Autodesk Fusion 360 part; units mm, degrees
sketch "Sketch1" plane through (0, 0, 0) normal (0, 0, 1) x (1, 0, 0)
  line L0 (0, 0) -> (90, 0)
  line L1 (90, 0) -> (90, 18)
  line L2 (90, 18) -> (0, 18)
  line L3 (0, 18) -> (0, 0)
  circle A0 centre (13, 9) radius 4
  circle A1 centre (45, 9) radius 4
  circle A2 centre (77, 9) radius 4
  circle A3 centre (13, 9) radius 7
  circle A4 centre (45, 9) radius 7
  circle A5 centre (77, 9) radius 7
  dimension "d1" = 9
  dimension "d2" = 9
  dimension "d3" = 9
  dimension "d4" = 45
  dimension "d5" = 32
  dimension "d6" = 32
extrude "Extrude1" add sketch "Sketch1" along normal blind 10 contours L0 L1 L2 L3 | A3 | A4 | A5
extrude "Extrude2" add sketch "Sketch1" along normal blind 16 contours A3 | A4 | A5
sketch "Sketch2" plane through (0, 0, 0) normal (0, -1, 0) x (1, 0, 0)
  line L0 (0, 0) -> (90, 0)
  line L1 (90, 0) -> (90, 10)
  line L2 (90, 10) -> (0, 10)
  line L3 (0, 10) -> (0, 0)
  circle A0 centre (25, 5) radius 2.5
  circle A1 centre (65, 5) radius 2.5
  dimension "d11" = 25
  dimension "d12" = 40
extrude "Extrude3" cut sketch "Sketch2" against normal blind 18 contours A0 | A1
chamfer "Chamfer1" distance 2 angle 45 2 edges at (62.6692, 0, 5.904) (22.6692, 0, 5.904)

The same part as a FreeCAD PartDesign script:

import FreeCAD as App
import Part
import Sketcher
from FreeCAD import Vector
Q = App.Units.Quantity


def edges_at(feature, points):
    """Names of the edges that pass closest to the given points."""
    edges = feature.Shape.Edges
    near = lambda p: min(range(len(edges)), key=lambda i: edges[i].distToShape(Part.Vertex(*p))[0])
    return sorted({f"Edge{near(p) + 1}" for p in points})


def add_polygon(sketch, points):
    """Adds a closed chain of lines whose ends are joined by coincident constraints."""
    first, n = sketch.GeometryCount, len(points)
    for a, b in zip(points, points[1:] + points[:1]):
        sketch.addGeometry(Part.LineSegment(App.Vector(*a, 0), App.Vector(*b, 0)), False)
    for i in range(n):
        sketch.addConstraint(Sketcher.Constraint("Coincident", first + i, 2, first + (i + 1) % n, 1))

doc = App.newDocument("Part")
body = doc.addObject("PartDesign::Body", "Body")

sketch1 = body.newObject("Sketcher::SketchObject", "Sketch")
sketch1.AttachmentSupport = (doc.getObject("XY_Plane"), [""])
sketch1.MapMode = "FlatFace"
add_polygon(sketch1, [(0, 18), (0, 0), (90, 0), (90, 18)])
sketch1.addGeometry(Part.Circle(Vector(13, 9, 0), Vector(0, 0, 1), 4), False)
sketch1.addGeometry(Part.Circle(Vector(45, 9, 0), Vector(0, 0, 1), 4), False)
sketch1.addGeometry(Part.Circle(Vector(77, 9, 0), Vector(0, 0, 1), 4), False)
sketch1.addConstraint([
    Sketcher.Constraint("Vertical", 0),
    Sketcher.Constraint("Horizontal", 1),
    Sketcher.Constraint("Vertical", 2),
    Sketcher.Constraint("Horizontal", 3),
    Sketcher.Constraint("Coincident", 0, 2, -1, 1),
    Sketcher.Constraint("Equal", 4, 5),
    Sketcher.Constraint("Equal", 5, 6),
    Sketcher.Constraint("Horizontal", 4, 3, 5, 3),
    Sketcher.Constraint("Horizontal", 5, 3, 6, 3),
    Sketcher.Constraint("Diameter", 4, Q("8 mm")),
    Sketcher.Constraint("DistanceY", -1, 1, 4, 3, Q("9 mm")),
    Sketcher.Constraint("DistanceX", -1, 1, 5, 3, Q("45 mm")),
    Sketcher.Constraint("DistanceX", 4, 3, 5, 3, Q("32 mm")),
    Sketcher.Constraint("DistanceX", 5, 3, 6, 3, Q("32 mm")),
    Sketcher.Constraint("DistanceX", 5, 3, 1, 2, Q("45 mm")),
    Sketcher.Constraint("DistanceY", 6, 3, 2, 2, Q("9 mm")),
])
pad1 = body.newObject("PartDesign::Pad", "Pad")
pad1.Profile = sketch1
pad1.Length = 10

sketch2 = body.newObject("Sketcher::SketchObject", "Sketch001")
sketch2.AttachmentSupport = (doc.getObject("XY_Plane"), [""])
sketch2.MapMode = "FlatFace"
sketch2.addGeometry([
    Part.Circle(Vector(13, 9, 0), Vector(0, 0, 1), 7),
    Part.Circle(Vector(13, 9, 0), Vector(0, 0, 1), 4),
    Part.Circle(Vector(45, 9, 0), Vector(0, 0, 1), 7),
    Part.Circle(Vector(45, 9, 0), Vector(0, 0, 1), 4),
    Part.Circle(Vector(77, 9, 0), Vector(0, 0, 1), 7),
    Part.Circle(Vector(77, 9, 0), Vector(0, 0, 1), 4),
], False)
sketch2.addConstraint([
    Sketcher.Constraint("Coincident", 1, 3, 0, 3),
    Sketcher.Constraint("Coincident", 3, 3, 2, 3),
    Sketcher.Constraint("Coincident", 5, 3, 4, 3),
    Sketcher.Constraint("Equal", 0, 2),
    Sketcher.Constraint("Equal", 1, 3),
    Sketcher.Constraint("Equal", 2, 4),
    Sketcher.Constraint("Equal", 3, 5),
    Sketcher.Constraint("Horizontal", 1, 3, 2, 3),
    Sketcher.Constraint("Horizontal", 3, 3, 4, 3),
    Sketcher.Constraint("Diameter", 0, Q("14 mm")),
    Sketcher.Constraint("Diameter", 1, Q("8 mm")),
    Sketcher.Constraint("DistanceY", -1, 1, 0, 3, Q("9 mm")),
    Sketcher.Constraint("DistanceX", -1, 1, 2, 3, Q("45 mm")),
    Sketcher.Constraint("DistanceX", 0, 3, 2, 3, Q("32 mm")),
    Sketcher.Constraint("DistanceX", 2, 3, 4, 3, Q("32 mm")),
])
pad2 = body.newObject("PartDesign::Pad", "Pad001")
pad2.Profile = sketch2
pad2.Length = 16

sketch3 = body.newObject("Sketcher::SketchObject", "Sketch002")
sketch3.AttachmentSupport = (doc.getObject("XZ_Plane"), [""])
sketch3.MapMode = "FlatFace"
sketch3.addGeometry([
    Part.Circle(Vector(25, 5, 0), Vector(0, 0, 1), 2.5),
    Part.Circle(Vector(65, 5, 0), Vector(0, 0, 1), 2.5),
], False)
sketch3.addConstraint([
    Sketcher.Constraint("Equal", 0, 1),
    Sketcher.Constraint("Horizontal", 0, 3, 1, 3),
    Sketcher.Constraint("Diameter", 0, Q("5 mm")),
    Sketcher.Constraint("DistanceX", -1, 1, 0, 3, Q("25 mm")),
    Sketcher.Constraint("DistanceX", 0, 3, 1, 3, Q("40 mm")),
    Sketcher.Constraint("DistanceY", -1, 1, 0, 3, Q("5 mm")),
])
pocket1 = body.newObject("PartDesign::Pocket", "Pocket")
pocket1.Profile = sketch3
pocket1.Length = 18
doc.recompute()

chamfer = body.newObject("PartDesign::Chamfer", "Chamfer")
chamfer.Base = (pocket1, edges_at(pocket1, [(62.669, 0, 5.904), (22.669, 0, 5.904)]))
chamfer.Size = 2

doc.recompute()
